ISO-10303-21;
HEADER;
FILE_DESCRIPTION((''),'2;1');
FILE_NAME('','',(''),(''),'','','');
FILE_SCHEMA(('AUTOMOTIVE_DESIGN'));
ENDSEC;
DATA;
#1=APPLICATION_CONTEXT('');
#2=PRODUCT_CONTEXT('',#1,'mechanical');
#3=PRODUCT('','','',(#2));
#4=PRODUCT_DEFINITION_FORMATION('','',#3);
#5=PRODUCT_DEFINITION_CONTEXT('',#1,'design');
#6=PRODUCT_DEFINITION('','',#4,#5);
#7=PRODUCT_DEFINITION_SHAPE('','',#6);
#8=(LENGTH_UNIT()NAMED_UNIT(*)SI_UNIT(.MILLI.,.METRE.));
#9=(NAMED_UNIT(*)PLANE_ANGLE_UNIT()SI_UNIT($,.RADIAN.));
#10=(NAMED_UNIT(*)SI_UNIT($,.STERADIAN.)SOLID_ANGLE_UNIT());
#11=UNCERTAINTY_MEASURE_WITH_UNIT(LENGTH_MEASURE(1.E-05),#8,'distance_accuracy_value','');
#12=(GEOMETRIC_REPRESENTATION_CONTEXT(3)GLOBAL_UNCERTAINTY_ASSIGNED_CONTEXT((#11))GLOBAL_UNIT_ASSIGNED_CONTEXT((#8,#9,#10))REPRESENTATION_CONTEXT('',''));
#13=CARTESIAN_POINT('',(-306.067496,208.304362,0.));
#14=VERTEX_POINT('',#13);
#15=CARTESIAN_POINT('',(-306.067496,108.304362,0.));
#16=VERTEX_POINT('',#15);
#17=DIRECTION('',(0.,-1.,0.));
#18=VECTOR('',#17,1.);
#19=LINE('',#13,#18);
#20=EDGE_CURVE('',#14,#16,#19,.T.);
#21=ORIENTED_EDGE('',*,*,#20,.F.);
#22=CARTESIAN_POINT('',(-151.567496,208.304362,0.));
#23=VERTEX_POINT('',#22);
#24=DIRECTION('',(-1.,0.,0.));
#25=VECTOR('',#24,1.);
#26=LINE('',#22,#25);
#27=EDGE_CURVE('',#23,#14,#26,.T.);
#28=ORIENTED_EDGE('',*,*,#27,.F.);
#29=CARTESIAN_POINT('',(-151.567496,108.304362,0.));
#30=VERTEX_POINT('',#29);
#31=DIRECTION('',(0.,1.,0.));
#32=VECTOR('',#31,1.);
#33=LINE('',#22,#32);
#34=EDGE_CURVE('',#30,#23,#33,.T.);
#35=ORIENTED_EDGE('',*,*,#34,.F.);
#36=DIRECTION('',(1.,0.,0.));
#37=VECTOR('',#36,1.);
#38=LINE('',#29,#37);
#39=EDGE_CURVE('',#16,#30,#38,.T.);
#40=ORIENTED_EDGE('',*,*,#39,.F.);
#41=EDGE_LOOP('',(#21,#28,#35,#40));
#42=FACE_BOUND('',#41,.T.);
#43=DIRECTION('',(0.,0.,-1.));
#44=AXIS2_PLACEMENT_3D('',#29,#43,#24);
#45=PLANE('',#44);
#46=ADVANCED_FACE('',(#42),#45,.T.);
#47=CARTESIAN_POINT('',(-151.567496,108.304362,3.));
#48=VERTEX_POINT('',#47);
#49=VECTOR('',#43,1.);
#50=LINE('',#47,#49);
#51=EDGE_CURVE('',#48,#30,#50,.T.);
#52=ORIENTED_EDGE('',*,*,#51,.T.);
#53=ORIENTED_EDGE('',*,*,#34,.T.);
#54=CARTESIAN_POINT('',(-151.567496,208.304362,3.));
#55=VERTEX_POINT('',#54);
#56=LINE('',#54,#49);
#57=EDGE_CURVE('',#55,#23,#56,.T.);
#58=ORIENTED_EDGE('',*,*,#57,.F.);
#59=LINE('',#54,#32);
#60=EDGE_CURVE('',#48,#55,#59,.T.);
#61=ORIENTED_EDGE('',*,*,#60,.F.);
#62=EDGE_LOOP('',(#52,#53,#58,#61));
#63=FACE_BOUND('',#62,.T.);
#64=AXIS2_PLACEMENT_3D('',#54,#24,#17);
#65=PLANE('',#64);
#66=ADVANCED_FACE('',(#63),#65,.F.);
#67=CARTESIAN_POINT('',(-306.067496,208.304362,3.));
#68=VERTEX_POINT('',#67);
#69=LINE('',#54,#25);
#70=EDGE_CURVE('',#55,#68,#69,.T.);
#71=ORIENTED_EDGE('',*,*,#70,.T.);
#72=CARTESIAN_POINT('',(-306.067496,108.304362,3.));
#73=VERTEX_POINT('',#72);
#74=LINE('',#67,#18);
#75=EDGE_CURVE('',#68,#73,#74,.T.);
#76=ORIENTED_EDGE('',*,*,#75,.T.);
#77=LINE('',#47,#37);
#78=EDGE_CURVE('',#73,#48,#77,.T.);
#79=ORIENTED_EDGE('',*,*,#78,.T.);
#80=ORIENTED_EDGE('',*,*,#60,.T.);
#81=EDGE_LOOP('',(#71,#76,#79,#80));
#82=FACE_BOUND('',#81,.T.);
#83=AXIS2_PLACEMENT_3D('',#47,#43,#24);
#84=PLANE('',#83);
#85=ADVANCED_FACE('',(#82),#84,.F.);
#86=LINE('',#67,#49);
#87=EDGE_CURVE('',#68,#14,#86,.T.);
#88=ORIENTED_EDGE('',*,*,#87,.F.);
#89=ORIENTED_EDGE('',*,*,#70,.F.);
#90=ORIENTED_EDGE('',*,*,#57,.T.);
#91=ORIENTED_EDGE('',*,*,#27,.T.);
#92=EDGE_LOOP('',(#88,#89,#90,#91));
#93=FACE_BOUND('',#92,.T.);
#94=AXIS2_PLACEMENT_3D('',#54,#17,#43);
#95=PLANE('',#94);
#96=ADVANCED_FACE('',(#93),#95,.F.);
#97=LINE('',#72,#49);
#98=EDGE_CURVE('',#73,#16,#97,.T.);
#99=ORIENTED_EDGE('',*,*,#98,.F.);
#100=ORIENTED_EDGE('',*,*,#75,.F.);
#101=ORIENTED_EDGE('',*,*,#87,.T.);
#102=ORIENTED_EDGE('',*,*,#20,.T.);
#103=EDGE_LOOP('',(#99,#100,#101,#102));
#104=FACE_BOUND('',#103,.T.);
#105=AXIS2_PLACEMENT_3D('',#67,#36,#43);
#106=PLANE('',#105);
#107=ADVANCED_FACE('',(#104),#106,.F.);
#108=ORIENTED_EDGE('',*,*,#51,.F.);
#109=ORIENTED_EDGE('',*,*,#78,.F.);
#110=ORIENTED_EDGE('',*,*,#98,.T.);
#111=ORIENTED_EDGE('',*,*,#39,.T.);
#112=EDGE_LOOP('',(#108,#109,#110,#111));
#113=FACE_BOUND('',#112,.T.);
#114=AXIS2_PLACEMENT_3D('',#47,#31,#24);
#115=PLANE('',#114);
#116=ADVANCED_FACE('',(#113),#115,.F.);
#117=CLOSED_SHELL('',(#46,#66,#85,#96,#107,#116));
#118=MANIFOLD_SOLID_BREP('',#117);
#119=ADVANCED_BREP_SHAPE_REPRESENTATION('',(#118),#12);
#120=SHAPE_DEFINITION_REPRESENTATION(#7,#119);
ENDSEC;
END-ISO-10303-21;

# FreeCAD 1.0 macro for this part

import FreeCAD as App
import Part
import Sketcher
from FreeCAD import Vector

doc = App.newDocument("Part")
body = doc.addObject("PartDesign::Body", "Body")

# Sketch on XY plane
sketch1 = body.newObject("Sketcher::SketchObject", "Sketch")
sketch1.AttachmentSupport = (doc.getObject("XY_Plane"), [""])
sketch1.MapMode = "FlatFace"
sketch1.addGeometry(Part.LineSegment(Vector(-306.067496, 208.304362, 0), Vector(-306.067496, 108.304362, 0)), False)
sketch1.addGeometry(Part.LineSegment(Vector(-306.067496, 108.304362, 0), Vector(-151.567496, 108.304362, 0)), False)
sketch1.addGeometry(Part.LineSegment(Vector(-151.567496, 108.304362, 0), Vector(-151.567496, 208.304362, 0)), False)
sketch1.addGeometry(Part.LineSegment(Vector(-151.567496, 208.304362, 0), Vector(-306.067496, 208.304362, 0)), False)
sketch1.addConstraint(Sketcher.Constraint("Coincident", 0, 2, 1, 1))
sketch1.addConstraint(Sketcher.Constraint("Coincident", 1, 2, 2, 1))
sketch1.addConstraint(Sketcher.Constraint("Coincident", 2, 2, 3, 1))
sketch1.addConstraint(Sketcher.Constraint("Coincident", 3, 2, 0, 1))
sketch1.addConstraint(Sketcher.Constraint("Vertical", 0))
sketch1.addConstraint(Sketcher.Constraint("Horizontal", 1))
sketch1.addConstraint(Sketcher.Constraint("Vertical", 2))
sketch1.addConstraint(Sketcher.Constraint("Horizontal", 3))
sketch1.addConstraint(Sketcher.Constraint("DistanceY", 0, 2, 0, 1, 100.0))
sketch1.addConstraint(Sketcher.Constraint("DistanceX", 1, 1, 1, 2, 154.5))
sketch1.addConstraint(Sketcher.Constraint("DistanceX", 0, 2, -1, 1, 306.067496))
sketch1.addConstraint(Sketcher.Constraint("DistanceY", -1, 1, 0, 2, 108.304362))
pad1 = body.newObject("PartDesign::Pad", "Pad")
pad1.Profile = sketch1
pad1.Length = 3

doc.recompute()
